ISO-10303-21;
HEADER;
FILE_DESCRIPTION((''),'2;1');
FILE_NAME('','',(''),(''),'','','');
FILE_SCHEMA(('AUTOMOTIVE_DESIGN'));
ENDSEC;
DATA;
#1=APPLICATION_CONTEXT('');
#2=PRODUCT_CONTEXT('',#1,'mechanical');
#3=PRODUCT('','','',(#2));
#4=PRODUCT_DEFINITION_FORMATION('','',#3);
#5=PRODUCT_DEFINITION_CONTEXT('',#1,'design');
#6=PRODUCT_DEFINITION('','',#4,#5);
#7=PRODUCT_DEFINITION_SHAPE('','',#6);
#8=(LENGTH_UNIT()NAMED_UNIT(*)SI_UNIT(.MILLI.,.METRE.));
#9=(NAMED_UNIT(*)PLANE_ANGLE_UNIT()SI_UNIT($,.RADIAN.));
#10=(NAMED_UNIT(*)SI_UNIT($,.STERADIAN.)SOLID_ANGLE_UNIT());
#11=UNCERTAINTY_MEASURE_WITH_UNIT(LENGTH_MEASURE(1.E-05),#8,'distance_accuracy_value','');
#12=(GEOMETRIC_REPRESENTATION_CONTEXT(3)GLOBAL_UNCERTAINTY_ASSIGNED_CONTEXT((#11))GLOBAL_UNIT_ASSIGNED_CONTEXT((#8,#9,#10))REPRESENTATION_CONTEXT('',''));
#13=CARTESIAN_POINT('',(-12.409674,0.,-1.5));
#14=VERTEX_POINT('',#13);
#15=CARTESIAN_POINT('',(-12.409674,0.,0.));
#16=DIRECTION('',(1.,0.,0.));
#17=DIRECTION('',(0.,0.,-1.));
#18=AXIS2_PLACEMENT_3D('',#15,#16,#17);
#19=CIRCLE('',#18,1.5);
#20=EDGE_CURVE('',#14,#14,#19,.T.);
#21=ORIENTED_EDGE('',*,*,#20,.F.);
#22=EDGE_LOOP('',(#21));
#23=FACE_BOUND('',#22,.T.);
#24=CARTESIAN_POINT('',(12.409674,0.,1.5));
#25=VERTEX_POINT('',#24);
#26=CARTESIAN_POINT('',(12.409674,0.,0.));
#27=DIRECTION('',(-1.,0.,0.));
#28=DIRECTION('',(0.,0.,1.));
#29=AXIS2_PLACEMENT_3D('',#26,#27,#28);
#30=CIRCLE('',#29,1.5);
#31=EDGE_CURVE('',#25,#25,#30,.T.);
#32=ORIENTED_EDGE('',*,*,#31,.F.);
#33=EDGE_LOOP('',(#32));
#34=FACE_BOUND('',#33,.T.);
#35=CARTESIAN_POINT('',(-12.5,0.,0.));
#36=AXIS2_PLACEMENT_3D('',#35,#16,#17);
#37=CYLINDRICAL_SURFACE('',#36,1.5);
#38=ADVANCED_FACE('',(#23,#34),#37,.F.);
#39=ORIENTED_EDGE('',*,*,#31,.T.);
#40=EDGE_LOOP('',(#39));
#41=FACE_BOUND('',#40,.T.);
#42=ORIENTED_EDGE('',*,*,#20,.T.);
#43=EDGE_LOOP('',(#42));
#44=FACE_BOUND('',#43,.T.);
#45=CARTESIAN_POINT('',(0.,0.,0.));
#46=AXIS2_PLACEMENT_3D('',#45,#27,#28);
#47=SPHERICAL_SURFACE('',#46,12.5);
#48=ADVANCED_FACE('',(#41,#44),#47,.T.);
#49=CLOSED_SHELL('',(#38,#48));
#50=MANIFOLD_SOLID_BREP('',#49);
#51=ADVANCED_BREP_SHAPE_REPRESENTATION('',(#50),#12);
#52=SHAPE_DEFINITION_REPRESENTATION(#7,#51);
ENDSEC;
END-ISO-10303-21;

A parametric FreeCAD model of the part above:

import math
import FreeCAD as App
import Part
import Sketcher

doc = App.newDocument("Part")
body = doc.addObject("PartDesign::Body", "Body")

# Sketch on XY plane
sketch1 = body.newObject("Sketcher::SketchObject", "Sketch")
sketch1.AttachmentSupport = (doc.getObject("XY_Plane"), [""])
sketch1.MapMode = "FlatFace"
sketch1.addGeometry(Part.LineSegment(App.Vector(0, 12, 0), App.Vector(0, -12, 0)), False)
sketch1.addGeometry(Part.ArcOfCircle(Part.Circle(App.Vector(0, 0, 0), App.Vector(0, 0, 1), 12), math.radians(-90), math.radians(90)), False)
sketch1.addConstraint(Sketcher.Constraint("Coincident", 0, 1, 1, 2))
sketch1.addConstraint(Sketcher.Constraint("Coincident", 1, 1, 0, 2))
sketch1.addConstraint(Sketcher.Constraint("Vertical", 0))
sketch1.addConstraint(Sketcher.Constraint("Coincident", 1, 3, -1, 1))
sketch1.addConstraint(Sketcher.Constraint("PointOnObject", 0, 1, -2))
sketch1.addConstraint(Sketcher.Constraint("Radius", 1, 12.5))
revolution = body.newObject("PartDesign::Revolution", "Revolution")
revolution.Profile = sketch1
revolution.ReferenceAxis = (sketch1, ["V_Axis"])
revolution.Angle = 360

# Sketch on YZ plane
sketch2 = body.newObject("Sketcher::SketchObject", "Sketch001")
sketch2.AttachmentSupport = (doc.getObject("YZ_Plane"), [""])
sketch2.MapMode = "FlatFace"
sketch2.addGeometry(Part.Circle(App.Vector(0, 0, 0), App.Vector(0, 0, 1), 1.5), False)
sketch2.addConstraint(Sketcher.Constraint("Coincident", 0, 3, -1, 1))
sketch2.addConstraint(Sketcher.Constraint("Diameter", 0, 3.0))
pocket1 = body.newObject("PartDesign::Pocket", "Pocket")
pocket1.Profile = sketch2
pocket1.Type = "ThroughAll"
pocket1.Midplane = True

doc.recompute()
